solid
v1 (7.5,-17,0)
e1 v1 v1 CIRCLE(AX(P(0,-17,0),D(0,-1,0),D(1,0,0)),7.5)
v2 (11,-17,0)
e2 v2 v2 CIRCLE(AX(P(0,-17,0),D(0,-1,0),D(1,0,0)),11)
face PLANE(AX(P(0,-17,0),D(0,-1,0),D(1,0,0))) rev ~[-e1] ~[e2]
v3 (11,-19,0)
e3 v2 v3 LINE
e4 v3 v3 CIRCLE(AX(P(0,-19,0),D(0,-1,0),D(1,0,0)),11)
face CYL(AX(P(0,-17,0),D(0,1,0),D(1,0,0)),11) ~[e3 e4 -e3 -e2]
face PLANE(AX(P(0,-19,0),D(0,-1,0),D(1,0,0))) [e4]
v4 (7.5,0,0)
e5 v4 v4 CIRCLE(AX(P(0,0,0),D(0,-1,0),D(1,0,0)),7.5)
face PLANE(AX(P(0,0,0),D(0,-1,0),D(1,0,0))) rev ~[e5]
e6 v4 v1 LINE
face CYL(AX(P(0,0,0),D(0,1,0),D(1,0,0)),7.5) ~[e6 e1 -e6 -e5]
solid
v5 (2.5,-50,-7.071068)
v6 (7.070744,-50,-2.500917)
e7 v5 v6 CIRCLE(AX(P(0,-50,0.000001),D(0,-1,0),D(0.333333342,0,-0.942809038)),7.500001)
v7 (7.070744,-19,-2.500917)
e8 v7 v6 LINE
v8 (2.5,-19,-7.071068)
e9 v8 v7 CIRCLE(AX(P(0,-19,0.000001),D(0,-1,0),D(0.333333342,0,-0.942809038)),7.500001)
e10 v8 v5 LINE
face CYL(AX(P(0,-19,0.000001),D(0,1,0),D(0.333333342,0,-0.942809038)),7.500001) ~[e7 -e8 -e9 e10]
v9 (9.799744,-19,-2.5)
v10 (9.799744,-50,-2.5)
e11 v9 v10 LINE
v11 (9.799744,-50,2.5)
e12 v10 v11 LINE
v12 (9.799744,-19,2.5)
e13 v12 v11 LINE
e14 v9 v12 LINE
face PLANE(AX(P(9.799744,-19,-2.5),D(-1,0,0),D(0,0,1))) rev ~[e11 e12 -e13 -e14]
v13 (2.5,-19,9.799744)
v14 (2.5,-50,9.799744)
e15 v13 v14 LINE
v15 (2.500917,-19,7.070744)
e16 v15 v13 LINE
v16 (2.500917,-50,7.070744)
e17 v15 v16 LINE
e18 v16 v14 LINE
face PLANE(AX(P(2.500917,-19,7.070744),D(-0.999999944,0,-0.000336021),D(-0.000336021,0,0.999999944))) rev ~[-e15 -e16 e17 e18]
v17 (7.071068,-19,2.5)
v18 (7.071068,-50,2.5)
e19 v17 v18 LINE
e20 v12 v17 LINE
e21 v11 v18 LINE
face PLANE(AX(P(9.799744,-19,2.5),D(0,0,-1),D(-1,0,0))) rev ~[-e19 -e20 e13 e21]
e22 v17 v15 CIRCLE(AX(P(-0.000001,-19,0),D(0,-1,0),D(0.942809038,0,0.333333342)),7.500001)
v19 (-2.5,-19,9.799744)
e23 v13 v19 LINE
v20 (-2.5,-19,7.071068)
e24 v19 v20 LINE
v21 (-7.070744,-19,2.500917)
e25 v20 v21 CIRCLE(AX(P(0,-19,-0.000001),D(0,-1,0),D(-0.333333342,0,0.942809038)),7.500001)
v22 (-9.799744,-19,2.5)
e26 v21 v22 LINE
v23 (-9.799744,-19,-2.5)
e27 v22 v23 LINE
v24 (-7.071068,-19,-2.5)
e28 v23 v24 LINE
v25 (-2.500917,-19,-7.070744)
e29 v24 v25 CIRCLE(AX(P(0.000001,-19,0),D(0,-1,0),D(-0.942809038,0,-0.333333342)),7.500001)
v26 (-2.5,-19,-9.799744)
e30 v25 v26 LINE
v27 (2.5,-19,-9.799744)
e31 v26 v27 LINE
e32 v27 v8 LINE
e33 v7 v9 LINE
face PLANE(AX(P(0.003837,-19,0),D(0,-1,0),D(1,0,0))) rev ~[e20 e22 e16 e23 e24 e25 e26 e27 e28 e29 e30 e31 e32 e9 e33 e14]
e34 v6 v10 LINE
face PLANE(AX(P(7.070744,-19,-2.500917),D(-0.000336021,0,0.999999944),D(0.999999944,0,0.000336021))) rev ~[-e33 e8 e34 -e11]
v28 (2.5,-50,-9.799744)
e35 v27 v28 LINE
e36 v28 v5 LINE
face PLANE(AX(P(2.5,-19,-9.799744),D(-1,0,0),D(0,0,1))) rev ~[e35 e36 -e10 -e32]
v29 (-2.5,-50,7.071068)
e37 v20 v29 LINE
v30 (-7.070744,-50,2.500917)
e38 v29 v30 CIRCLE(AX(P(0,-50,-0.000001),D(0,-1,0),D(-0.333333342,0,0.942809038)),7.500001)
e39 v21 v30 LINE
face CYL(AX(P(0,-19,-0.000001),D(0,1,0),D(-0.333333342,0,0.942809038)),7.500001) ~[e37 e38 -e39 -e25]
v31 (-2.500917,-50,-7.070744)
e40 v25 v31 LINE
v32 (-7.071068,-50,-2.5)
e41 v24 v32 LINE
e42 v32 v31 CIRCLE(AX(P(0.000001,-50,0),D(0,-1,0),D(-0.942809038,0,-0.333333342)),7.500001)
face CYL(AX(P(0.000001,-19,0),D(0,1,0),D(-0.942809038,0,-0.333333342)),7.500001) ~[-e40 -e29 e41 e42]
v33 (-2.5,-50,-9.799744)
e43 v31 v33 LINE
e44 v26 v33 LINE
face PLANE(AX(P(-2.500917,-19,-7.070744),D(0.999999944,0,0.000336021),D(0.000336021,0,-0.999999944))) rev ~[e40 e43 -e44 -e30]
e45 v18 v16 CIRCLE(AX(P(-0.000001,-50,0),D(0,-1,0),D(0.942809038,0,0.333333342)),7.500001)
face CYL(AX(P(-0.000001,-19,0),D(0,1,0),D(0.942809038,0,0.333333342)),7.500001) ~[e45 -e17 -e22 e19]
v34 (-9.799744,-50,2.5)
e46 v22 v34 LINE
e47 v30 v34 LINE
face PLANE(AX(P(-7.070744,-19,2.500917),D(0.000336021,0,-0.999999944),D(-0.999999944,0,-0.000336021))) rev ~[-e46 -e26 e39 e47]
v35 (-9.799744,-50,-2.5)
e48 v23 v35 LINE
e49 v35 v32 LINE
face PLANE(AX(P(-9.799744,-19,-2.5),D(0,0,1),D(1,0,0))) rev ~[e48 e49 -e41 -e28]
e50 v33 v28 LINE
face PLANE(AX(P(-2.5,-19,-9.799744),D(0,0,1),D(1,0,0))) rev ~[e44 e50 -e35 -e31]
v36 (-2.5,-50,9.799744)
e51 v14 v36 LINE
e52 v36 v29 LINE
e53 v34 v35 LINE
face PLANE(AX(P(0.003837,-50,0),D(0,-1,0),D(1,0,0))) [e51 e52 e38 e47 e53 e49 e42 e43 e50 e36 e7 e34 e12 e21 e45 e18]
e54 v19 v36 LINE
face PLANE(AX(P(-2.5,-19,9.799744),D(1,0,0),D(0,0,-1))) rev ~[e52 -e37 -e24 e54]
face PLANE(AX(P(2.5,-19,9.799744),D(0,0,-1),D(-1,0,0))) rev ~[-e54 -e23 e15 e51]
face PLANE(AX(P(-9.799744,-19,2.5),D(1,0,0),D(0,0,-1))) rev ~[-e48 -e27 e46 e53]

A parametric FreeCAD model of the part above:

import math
import FreeCAD as App
import Part
import Sketcher
from FreeCAD import Vector

doc = App.newDocument("Part")
body = doc.addObject("PartDesign::Body", "Body")

# Sketch on XZ plane
sketch1 = doc.addObject("Sketcher::SketchObject", "Sketch")
body.addObject(sketch1)
sketch1.AttachmentSupport = (doc.XZ_Plane, [""])
sketch1.MapMode = "FlatFace"
sketch1.addGeometry(Part.Circle(Vector(0, 0, 0), Vector(0, 0, 1), 8), False)
sketch1.addConstraint(Sketcher.Constraint("Coincident", 0, 3, -1, 1))
sketch1.addConstraint(Sketcher.Constraint("Diameter", 0, 15.0))
pad1 = doc.addObject("PartDesign::Pad", "Pad")
body.addObject(pad1)
pad1.Profile = sketch1
pad1.Length = 17

# Sketch on XZ plane
sketch2 = doc.addObject("Sketcher::SketchObject", "Sketch001")
body.addObject(sketch2)
sketch2.AttachmentSupport = (doc.XZ_Plane, [""])
sketch2.MapMode = "FlatFace"
sketch2.AttachmentOffset = App.Placement(Vector(0, 0, 17), App.Rotation())
sketch2.addGeometry(Part.Circle(Vector(0, 0, 0), Vector(0, 0, 1), 11), False)
sketch2.addConstraint(Sketcher.Constraint("Coincident", 0, 3, -1, 1))
sketch2.addConstraint(Sketcher.Constraint("Diameter", 0, 22.0))
pad2 = doc.addObject("PartDesign::Pad", "Pad001")
body.addObject(pad2)
pad2.Profile = sketch2
pad2.Length = 2
body2 = doc.addObject("PartDesign::Body", "Body001")

# Sketch on XZ plane
sketch3 = doc.addObject("Sketcher::SketchObject", "Sketch002")
body2.addObject(sketch3)
sketch3.AttachmentSupport = (doc.getObject("XZ_Plane001"), [""])
sketch3.MapMode = "FlatFace"
sketch3.AttachmentOffset = App.Placement(Vector(0, 0, 19), App.Rotation())
sketch3.addGeometry(Part.ArcOfCircle(Part.Circle(Vector(0, 0, 0), Vector(0, 0, 1), 7.5), math.radians(19), math.radians(71)), False)
sketch3.addGeometry(Part.LineSegment(Vector(2.5, 7.1, 0), Vector(2.5, 9.8, 0)), False)
sketch3.addGeometry(Part.LineSegment(Vector(2.5, 9.8, 0), Vector(-2.5, 9.8, 0)), False)
sketch3.addGeometry(Part.LineSegment(Vector(-2.5, 9.8, 0), Vector(-2.5, 7.1, 0)), False)
sketch3.addGeometry(Part.ArcOfCircle(Part.Circle(Vector(0, 0, 0), Vector(0, 0, 1), 7.5), math.radians(109), math.radians(161)), False)
sketch3.addGeometry(Part.LineSegment(Vector(-7.1, 2.5, 0), Vector(-9.8, 2.5, 0)), False)
sketch3.addGeometry(Part.LineSegment(Vector(-9.8, 2.5, 0), Vector(-9.8, -2.5, 0)), False)
sketch3.addGeometry(Part.LineSegment(Vector(-9.8, -2.5, 0), Vector(-7.1, -2.5, 0)), False)
sketch3.addGeometry(Part.ArcOfCircle(Part.Circle(Vector(0, 0, 0), Vector(0, 0, 1), 7.5), math.radians(-161), math.radians(-109)), False)
sketch3.addGeometry(Part.LineSegment(Vector(-2.5, -7.1, 0), Vector(-2.5, -9.8, 0)), False)
sketch3.addGeometry(Part.LineSegment(Vector(-2.5, -9.8, 0), Vector(2.5, -9.8, 0)), False)
sketch3.addGeometry(Part.LineSegment(Vector(2.5, -9.8, 0), Vector(2.5, -7.1, 0)), False)
sketch3.addGeometry(Part.ArcOfCircle(Part.Circle(Vector(0, 0, 0), Vector(0, 0, 1), 7.5), math.radians(-71), math.radians(-19)), False)
sketch3.addGeometry(Part.LineSegment(Vector(7.1, -2.5, 0), Vector(9.8, -2.5, 0)), False)
sketch3.addGeometry(Part.LineSegment(Vector(9.8, -2.5, 0), Vector(9.8, 2.5, 0)), False)
sketch3.addGeometry(Part.LineSegment(Vector(9.8, 2.5, 0), Vector(7.1, 2.5, 0)), False)
sketch3.addConstraint(Sketcher.Constraint("Coincident", 0, 2, 1, 1))
sketch3.addConstraint(Sketcher.Constraint("Coincident", 1, 2, 2, 1))
sketch3.addConstraint(Sketcher.Constraint("Coincident", 2, 2, 3, 1))
sketch3.addConstraint(Sketcher.Constraint("Coincident", 3, 2, 4, 1))
sketch3.addConstraint(Sketcher.Constraint("Coincident", 4, 2, 5, 1))
sketch3.addConstraint(Sketcher.Constraint("Coincident", 5, 2, 6, 1))
sketch3.addConstraint(Sketcher.Constraint("Coincident", 6, 2, 7, 1))
sketch3.addConstraint(Sketcher.Constraint("Coincident", 7, 2, 8, 1))
sketch3.addConstraint(Sketcher.Constraint("Coincident", 8, 2, 9, 1))
sketch3.addConstraint(Sketcher.Constraint("Coincident", 9, 2, 10, 1))
sketch3.addConstraint(Sketcher.Constraint("Coincident", 10, 2, 11, 1))
sketch3.addConstraint(Sketcher.Constraint("Coincident", 11, 2, 12, 1))
sketch3.addConstraint(Sketcher.Constraint("Coincident", 12, 2, 13, 1))
sketch3.addConstraint(Sketcher.Constraint("Coincident", 13, 2, 14, 1))
sketch3.addConstraint(Sketcher.Constraint("Coincident", 14, 2, 15, 1))
sketch3.addConstraint(Sketcher.Constraint("Coincident", 15, 2, 0, 1))
sketch3.addConstraint(Sketcher.Constraint("Horizontal", 2))
sketch3.addConstraint(Sketcher.Constraint("Vertical", 3))
sketch3.addConstraint(Sketcher.Constraint("Vertical", 6))
sketch3.addConstraint(Sketcher.Constraint("Horizontal", 7))
sketch3.addConstraint(Sketcher.Constraint("Horizontal", 10))
sketch3.addConstraint(Sketcher.Constraint("Vertical", 11))
sketch3.addConstraint(Sketcher.Constraint("Vertical", 14))
sketch3.addConstraint(Sketcher.Constraint("Horizontal", 15))
sketch3.addConstraint(Sketcher.Constraint("Coincident", 0, 3, -1, 1))
sketch3.addConstraint(Sketcher.Constraint("Coincident", 4, 3, -1, 1))
sketch3.addConstraint(Sketcher.Constraint("Coincident", 8, 3, -1, 1))
sketch3.addConstraint(Sketcher.Constraint("Coincident", 12, 3, -1, 1))
sketch3.addConstraint(Sketcher.Constraint("Equal", 0, 4))
sketch3.addConstraint(Sketcher.Constraint("Equal", 4, 8))
sketch3.addConstraint(Sketcher.Constraint("Equal", 8, 12))
sketch3.addConstraint(Sketcher.Constraint("Symmetric", 1, 2, 9, 2, -1, 1))
sketch3.addConstraint(Sketcher.Constraint("Symmetric", 5, 2, 13, 2, -1, 1))
sketch3.addConstraint(Sketcher.Constraint("Perpendicular", 1, 5))
sketch3.addConstraint(Sketcher.Constraint("Perpendicular", 5, 9))
sketch3.addConstraint(Sketcher.Constraint("Perpendicular", 9, 13))
sketch3.addConstraint(Sketcher.Constraint("Horizontal", 7, 2, 13, 2))
sketch3.addConstraint(Sketcher.Constraint("Horizontal", 5, 2, 14, 2))
sketch3.addConstraint(Sketcher.Constraint("Vertical", 3, 2, 9, 2))
sketch3.addConstraint(Sketcher.Constraint("Vertical", 1, 2, 10, 2))
sketch3.addConstraint(Sketcher.Constraint("Equal", 15, 3))
sketch3.addConstraint(Sketcher.Constraint("Equal", 10, 6))
sketch3.addConstraint(Sketcher.Constraint("Radius", 0, 7.500001))
sketch3.addConstraint(Sketcher.Constraint("DistanceX", 2, 2, 2, 1, 5.0))
sketch3.addConstraint(Sketcher.Constraint("Distance", 1, 2.729))
sketch3.addConstraint(Sketcher.Constraint("DistanceX", 7, 1, 7, 2, 2.728676))
pad3 = doc.addObject("PartDesign::Pad", "Pad002")
body2.addObject(pad3)
pad3.Profile = sketch3
pad3.Length = 31

doc.recompute()
